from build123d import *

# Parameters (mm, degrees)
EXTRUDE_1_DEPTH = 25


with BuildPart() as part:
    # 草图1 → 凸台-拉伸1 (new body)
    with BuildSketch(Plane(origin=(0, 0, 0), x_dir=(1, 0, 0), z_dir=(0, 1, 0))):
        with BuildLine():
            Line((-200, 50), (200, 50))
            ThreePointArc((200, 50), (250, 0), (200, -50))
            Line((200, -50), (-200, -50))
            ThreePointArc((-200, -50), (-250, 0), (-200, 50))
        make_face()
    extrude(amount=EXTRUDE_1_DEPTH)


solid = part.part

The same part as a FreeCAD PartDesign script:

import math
import FreeCAD as App
import Part
import Sketcher
Q = App.Units.Quantity

doc = App.newDocument("Part")
params = doc.addObject("Spreadsheet::Sheet", "Params")
for row, (alias, value) in enumerate([
    ("sketch1_radius", "50 mm"),
    ("sketch1_width", "400 mm"),
    ("pad1_length", "25 mm"),
], start=1):
    params.set(f"A{row}", alias)
    params.set(f"B{row}", "=" + value)
    params.setAlias(f"B{row}", alias)

body = doc.addObject("PartDesign::Body", "Body")

# Sketch on XZ plane
sketch1 = doc.addObject("Sketcher::SketchObject", "Sketch")
body.addObject(sketch1)
sketch1.AttachmentSupport = (doc.XZ_Plane, [""])
sketch1.MapMode = "FlatFace"
sketch1.addGeometry(Part.LineSegment(App.Vector(200, -50, 0), App.Vector(-200, -50, 0)), False)
sketch1.addGeometry(Part.ArcOfCircle(Part.Circle(App.Vector(-200, 0, 0), App.Vector(0, 0, 1), 50), math.radians(90), math.radians(270)), False)
sketch1.addGeometry(Part.LineSegment(App.Vector(-200, 50, 0), App.Vector(200, 50, 0)), False)
sketch1.addGeometry(Part.ArcOfCircle(Part.Circle(App.Vector(200, 0, 0), App.Vector(0, 0, 1), 50), math.radians(-90), math.radians(90)), False)
sketch1.addConstraint(Sketcher.Constraint("Tangent", 0, 2, 1, 2))
sketch1.addConstraint(Sketcher.Constraint("Tangent", 1, 1, 2, 1))
sketch1.addConstraint(Sketcher.Constraint("Tangent", 2, 2, 3, 2))
sketch1.addConstraint(Sketcher.Constraint("Tangent", 3, 1, 0, 1))
sketch1.addConstraint(Sketcher.Constraint("Horizontal", 0))
sketch1.addConstraint(Sketcher.Constraint("Horizontal", 2))
sketch1.addConstraint(Sketcher.Constraint("Symmetric", 1, 3, 3, 3, -1, 1))
sketch1.addConstraint(Sketcher.Constraint("Radius", 1, Q("50 mm")))
sketch1.addConstraint(Sketcher.Constraint("DistanceX", 0, 2, 0, 1, Q("400 mm")))
sketch1.setExpression("Constraints[7]", "Params.sketch1_radius")
sketch1.setExpression("Constraints[8]", "Params.sketch1_width")
pad1 = doc.addObject("PartDesign::Pad", "Pad")
body.addObject(pad1)
pad1.Profile = sketch1
pad1.setExpression("Length", "Params.pad1_length")
pad1.Reversed = True

doc.recompute()
